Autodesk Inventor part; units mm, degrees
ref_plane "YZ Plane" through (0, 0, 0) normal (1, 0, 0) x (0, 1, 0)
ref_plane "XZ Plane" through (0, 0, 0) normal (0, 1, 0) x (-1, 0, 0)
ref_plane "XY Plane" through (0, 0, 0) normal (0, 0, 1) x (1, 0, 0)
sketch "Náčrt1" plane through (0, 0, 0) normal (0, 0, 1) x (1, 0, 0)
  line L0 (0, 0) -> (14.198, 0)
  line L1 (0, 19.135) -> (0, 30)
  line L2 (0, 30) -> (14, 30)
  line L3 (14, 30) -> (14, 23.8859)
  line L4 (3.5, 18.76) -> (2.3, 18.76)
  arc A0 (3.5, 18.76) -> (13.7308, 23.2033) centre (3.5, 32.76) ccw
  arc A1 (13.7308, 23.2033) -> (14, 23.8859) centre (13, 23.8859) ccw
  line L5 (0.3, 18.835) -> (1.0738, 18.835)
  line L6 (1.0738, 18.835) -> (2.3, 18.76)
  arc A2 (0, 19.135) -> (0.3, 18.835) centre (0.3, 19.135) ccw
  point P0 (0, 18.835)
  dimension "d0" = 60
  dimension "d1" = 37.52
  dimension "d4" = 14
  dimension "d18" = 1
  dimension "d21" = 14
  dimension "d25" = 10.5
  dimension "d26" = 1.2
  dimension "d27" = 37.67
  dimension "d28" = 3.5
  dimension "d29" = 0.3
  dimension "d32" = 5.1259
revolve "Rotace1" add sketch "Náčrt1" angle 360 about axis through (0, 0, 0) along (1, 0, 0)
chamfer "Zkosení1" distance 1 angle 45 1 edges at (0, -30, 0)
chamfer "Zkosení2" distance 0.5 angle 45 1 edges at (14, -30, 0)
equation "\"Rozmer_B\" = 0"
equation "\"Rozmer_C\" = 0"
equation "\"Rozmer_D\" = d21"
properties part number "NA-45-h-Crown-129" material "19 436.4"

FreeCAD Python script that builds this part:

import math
import FreeCAD as App
import Part
import Sketcher

V = App.Vector
Q = App.Units.Quantity


def edges_at(feature, points):
    """Names of the edges that pass closest to the given points."""
    edges = feature.Shape.Edges
    near = lambda p: min(range(len(edges)), key=lambda i: edges[i].distToShape(Part.Vertex(*p))[0])
    return sorted({f"Edge{near(p) + 1}" for p in points})

doc = App.newDocument("Part")
body = doc.addObject("PartDesign::Body", "Body")

# Sketch on XY plane
sketch1 = body.newObject("Sketcher::SketchObject", "Sketch")
sketch1.AttachmentSupport = (doc.getObject("XY_Plane"), [""])
sketch1.MapMode = "FlatFace"
sketch1.addGeometry([
    Part.LineSegment(V(0, 30, 0), V(0, 19.14, 0)),  # 0
    Part.ArcOfCircle(Part.Circle(V(0.3, 19.14, 0), V(0, 0, 1), 0.3), math.radians(180), math.radians(270)),  # 1
    Part.LineSegment(V(0.3, 18.84, 0), V(1.07, 18.84, 0)),  # 2
    Part.LineSegment(V(1.07, 18.84, 0), V(2.3, 18.76, 0)),  # 3
    Part.LineSegment(V(2.3, 18.76, 0), V(3.5, 18.76, 0)),  # 4
    Part.ArcOfCircle(Part.Circle(V(3.5, 32.76, 0), V(0, 0, 1), 14), math.radians(-90), math.radians(-43)),  # 5
    Part.ArcOfCircle(Part.Circle(V(13, 23.89, 0), V(0, 0, 1), 1), math.radians(-43), math.radians(0)),  # 6
    Part.LineSegment(V(14, 23.89, 0), V(14, 30, 0)),  # 7
    Part.LineSegment(V(14, 30, 0), V(0, 30, 0)),  # 8
], False)
sketch1.addConstraint([
    Sketcher.Constraint("Tangent", 0, 2, 1, 1),
    Sketcher.Constraint("Tangent", 1, 2, 2, 1),
    Sketcher.Constraint("Coincident", 2, 2, 3, 1),
    Sketcher.Constraint("Coincident", 3, 2, 4, 1),
    Sketcher.Constraint("Tangent", 4, 2, 5, 1),
    Sketcher.Constraint("Tangent", 5, 2, 6, 1),
    Sketcher.Constraint("Tangent", 6, 2, 7, 1),
    Sketcher.Constraint("Coincident", 7, 2, 8, 1),
    Sketcher.Constraint("Coincident", 8, 2, 0, 1),
    Sketcher.Constraint("Vertical", 0),
    Sketcher.Constraint("Horizontal", 2),
    Sketcher.Constraint("Horizontal", 4),
    Sketcher.Constraint("Vertical", 7),
    Sketcher.Constraint("Horizontal", 8),
    Sketcher.Constraint("PointOnObject", 0, 2, -2),
    Sketcher.Constraint("Radius", 5, 14.0),
    Sketcher.Constraint("Radius", 6, 1.0),
    Sketcher.Constraint("Radius", 1, 0.3),
    Sketcher.Constraint("DistanceX", 8, 2, 8, 1, 14.0),
    Sketcher.Constraint("DistanceX", 4, 1, 4, 2, 1.2),
    Sketcher.Constraint("Angle", 3, Q("-3.5 deg")),
    Sketcher.Constraint("DistanceX", -1, 1, 5, 3, 3.5),
    Sketcher.Constraint("DistanceY", -1, 1, 7, 2, 30.0),
    Sketcher.Constraint("DistanceY", 0, 2, 0, 1, 10.865),
    Sketcher.Constraint("DistanceY", 7, 1, 7, 2, 6.114),
])
revolution = body.newObject("PartDesign::Revolution", "Revolution")
revolution.Profile = sketch1
revolution.ReferenceAxis = (sketch1, ["H_Axis"])
revolution.Angle = 360
doc.recompute()

chamfer = body.newObject("PartDesign::Chamfer", "Chamfer")
chamfer.Base = (revolution, edges_at(revolution, [(0, -30, 0)]))
chamfer.Size = 1
doc.recompute()

chamfer2 = body.newObject("PartDesign::Chamfer", "Chamfer001")
chamfer2.Base = (chamfer, edges_at(chamfer, [(14, -30, 0)]))
chamfer2.Size = 0.5

doc.recompute()
